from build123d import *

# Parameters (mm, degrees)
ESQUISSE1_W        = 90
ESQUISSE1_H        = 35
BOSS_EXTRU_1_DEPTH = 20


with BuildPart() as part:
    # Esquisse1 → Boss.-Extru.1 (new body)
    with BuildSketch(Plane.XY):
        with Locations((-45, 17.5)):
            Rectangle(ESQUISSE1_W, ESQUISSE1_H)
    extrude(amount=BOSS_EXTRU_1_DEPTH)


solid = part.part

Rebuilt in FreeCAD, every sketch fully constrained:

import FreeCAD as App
import Part
import Sketcher

V = App.Vector

doc = App.newDocument("Part")
params = doc.addObject("Spreadsheet::Sheet", "Params")
for row, (alias, value) in enumerate([
    ("sketch1_width", "90 mm"),
    ("sketch1_height", "35 mm"),
    ("pad1_length", "20 mm"),
], start=1):
    params.set(f"A{row}", alias)
    params.set(f"B{row}", "=" + value)
    params.setAlias(f"B{row}", alias)

body = doc.addObject("PartDesign::Body", "Body")

# Sketch on XY plane
sketch1 = body.newObject("Sketcher::SketchObject", "Sketch")
sketch1.AttachmentSupport = (doc.getObject("XY_Plane"), [""])
sketch1.MapMode = "FlatFace"
sketch1.addGeometry([
    Part.LineSegment(V(-90, 35, 0), V(-90, 0, 0)),
    Part.LineSegment(V(-90, 0, 0), V(0, 0, 0)),
    Part.LineSegment(V(0, 0, 0), V(0, 35, 0)),
    Part.LineSegment(V(0, 35, 0), V(-90, 35, 0)),
], False)
sketch1.addConstraint([
    Sketcher.Constraint("Coincident", 0, 2, 1, 1),
    Sketcher.Constraint("Coincident", 1, 2, 2, 1),
    Sketcher.Constraint("Coincident", 2, 2, 3, 1),
    Sketcher.Constraint("Coincident", 3, 2, 0, 1),
    Sketcher.Constraint("Vertical", 0),
    Sketcher.Constraint("Horizontal", 1),
    Sketcher.Constraint("Vertical", 2),
    Sketcher.Constraint("Horizontal", 3),
    Sketcher.Constraint("Coincident", 1, 2, -1, 1),
    Sketcher.Constraint("DistanceX", 1, 1, 1, 2, 90.0),
    Sketcher.Constraint("DistanceY", 0, 2, 0, 1, 35.0),
])
sketch1.setExpression("Constraints[9]", "Params.sketch1_width")
sketch1.setExpression("Constraints[10]", "Params.sketch1_height")
pad1 = body.newObject("PartDesign::Pad", "Pad")
pad1.Profile = sketch1
pad1.setExpression("Length", "Params.pad1_length")

doc.recompute()
